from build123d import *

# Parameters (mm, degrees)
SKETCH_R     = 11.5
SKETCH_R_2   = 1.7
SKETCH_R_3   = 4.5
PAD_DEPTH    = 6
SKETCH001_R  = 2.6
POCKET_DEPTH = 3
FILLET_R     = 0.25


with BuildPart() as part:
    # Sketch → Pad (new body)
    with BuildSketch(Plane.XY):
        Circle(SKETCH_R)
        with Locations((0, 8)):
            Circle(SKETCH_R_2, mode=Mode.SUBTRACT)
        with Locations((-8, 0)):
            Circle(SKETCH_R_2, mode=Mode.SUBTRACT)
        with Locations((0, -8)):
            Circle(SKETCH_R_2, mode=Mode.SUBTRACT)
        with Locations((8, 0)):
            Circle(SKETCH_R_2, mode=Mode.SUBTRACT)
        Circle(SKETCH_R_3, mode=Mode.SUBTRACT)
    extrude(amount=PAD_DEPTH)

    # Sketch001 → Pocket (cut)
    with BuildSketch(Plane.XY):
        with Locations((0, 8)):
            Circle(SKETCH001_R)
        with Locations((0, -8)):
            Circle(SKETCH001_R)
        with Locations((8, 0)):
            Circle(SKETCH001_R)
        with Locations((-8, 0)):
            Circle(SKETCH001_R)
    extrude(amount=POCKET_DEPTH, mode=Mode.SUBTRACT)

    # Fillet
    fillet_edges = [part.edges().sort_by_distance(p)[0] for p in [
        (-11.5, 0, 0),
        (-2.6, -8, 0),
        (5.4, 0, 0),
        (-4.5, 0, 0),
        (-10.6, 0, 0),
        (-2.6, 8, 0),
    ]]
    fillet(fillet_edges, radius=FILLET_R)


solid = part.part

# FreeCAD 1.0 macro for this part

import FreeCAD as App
import Part
import Sketcher
from FreeCAD import Vector
Q = App.Units.Quantity


def edges_at(feature, points):
    """Names of the edges that pass closest to the given points."""
    edges = feature.Shape.Edges
    near = lambda p: min(range(len(edges)), key=lambda i: edges[i].distToShape(Part.Vertex(*p))[0])
    return sorted({f"Edge{near(p) + 1}" for p in points})

doc = App.newDocument("Part")
params = doc.addObject("Spreadsheet::Sheet", "Params")
for row, (alias, value) in enumerate([
    ("sketch1_diameter", "23 mm"),
    ("sketch1_diameter2", "9 mm"),
    ("sketch1_diameter3", "3.4 mm"),
    ("pad1_length", "6 mm"),
    ("sketch2_diameter", "5.2 mm"),
    ("pocket1_length", "3 mm"),
    ("fillet_radius", "0.25 mm"),
], start=1):
    params.set(f"A{row}", alias)
    params.set(f"B{row}", "=" + value)
    params.setAlias(f"B{row}", alias)

body = doc.addObject("PartDesign::Body", "Body")

# Sketch on XY plane
sketch1 = body.newObject("Sketcher::SketchObject", "Sketch")
sketch1.AttachmentSupport = (doc.getObject("XY_Plane"), [""])
sketch1.MapMode = "FlatFace"
sketch1.addGeometry([
    Part.Circle(Vector(0, 0, 0), Vector(0, 0, 1), 11.5),  # 0
    Part.Circle(Vector(0, -8, 0), Vector(0, 0, 1), 1.7),  # 1
    Part.Circle(Vector(-8, 0, 0), Vector(0, 0, 1), 1.7),  # 2
    Part.Circle(Vector(0, 0, 0), Vector(0, 0, 1), 4.5),  # 3
    Part.Circle(Vector(8, 0, 0), Vector(0, 0, 1), 1.7),  # 4
    Part.Circle(Vector(0, 8, 0), Vector(0, 0, 1), 1.7),  # 5
], False)
sketch1.addConstraint([
    Sketcher.Constraint("Coincident", 0, 3, -1, 1),
    Sketcher.Constraint("Coincident", 3, 3, -1, 1),
    Sketcher.Constraint("Equal", 1, 2),
    Sketcher.Constraint("Equal", 2, 4),
    Sketcher.Constraint("Equal", 4, 5),
    Sketcher.Constraint("Symmetric", 2, 3, 4, 3, -1, 1),
    Sketcher.Constraint("Symmetric", 1, 3, 5, 3, -1, 1),
    Sketcher.Constraint("PointOnObject", 1, 3, -2),
    Sketcher.Constraint("PointOnObject", 2, 3, -1),
    Sketcher.Constraint("Diameter", 0, Q("23 mm")),
    Sketcher.Constraint("Diameter", 3, Q("9 mm")),
    Sketcher.Constraint("Diameter", 1, Q("3.4 mm")),
    Sketcher.Constraint("DistanceY", 1, 3, -1, 1, Q("8 mm")),
    Sketcher.Constraint("DistanceX", 2, 3, -1, 1, Q("8 mm")),
])
sketch1.setExpression("Constraints[9]", "Params.sketch1_diameter")
sketch1.setExpression("Constraints[10]", "Params.sketch1_diameter2")
sketch1.setExpression("Constraints[11]", "Params.sketch1_diameter3")
pad1 = body.newObject("PartDesign::Pad", "Pad")
pad1.Profile = sketch1
pad1.setExpression("Length", "Params.pad1_length")

# Sketch on XY plane
sketch2 = body.newObject("Sketcher::SketchObject", "Sketch001")
sketch2.AttachmentSupport = (doc.getObject("XY_Plane"), [""])
sketch2.MapMode = "FlatFace"
sketch2.addGeometry([
    Part.Circle(Vector(0, 8, 0), Vector(0, 0, 1), 2.6),
    Part.Circle(Vector(0, -8, 0), Vector(0, 0, 1), 2.6),
    Part.Circle(Vector(8, 0, 0), Vector(0, 0, 1), 2.6),
    Part.Circle(Vector(-8, 0, 0), Vector(0, 0, 1), 2.6),
], False)
sketch2.addConstraint([
    Sketcher.Constraint("Equal", 0, 1),
    Sketcher.Constraint("Equal", 1, 2),
    Sketcher.Constraint("Equal", 2, 3),
    Sketcher.Constraint("Symmetric", 0, 3, 1, 3, -1, 1),
    Sketcher.Constraint("Symmetric", 2, 3, 3, 3, -1, 1),
    Sketcher.Constraint("PointOnObject", 0, 3, -2),
    Sketcher.Constraint("PointOnObject", 2, 3, -1),
    Sketcher.Constraint("Diameter", 0, Q("5.2 mm")),
    Sketcher.Constraint("DistanceY", -1, 1, 0, 3, Q("8 mm")),
    Sketcher.Constraint("DistanceX", -1, 1, 2, 3, Q("8 mm")),
])
sketch2.setExpression("Constraints[7]", "Params.sketch2_diameter")
pocket1 = body.newObject("PartDesign::Pocket", "Pocket")
pocket1.Profile = sketch2
pocket1.setExpression("Length", "Params.pocket1_length")
pocket1.Reversed = True
doc.recompute()

fillet = body.newObject("PartDesign::Fillet", "Fillet")
fillet.Base = (pocket1, edges_at(pocket1, [
    (-11.5, 0, 0),
    (-2.6, -8, 0),
    (5.4, 0, 0),
    (-4.5, 0, 0),
    (-10.6, 0, 0),
    (-2.6, 8, 0),
]))
fillet.setExpression("Radius", "Params.fillet_radius")

doc.recompute()
